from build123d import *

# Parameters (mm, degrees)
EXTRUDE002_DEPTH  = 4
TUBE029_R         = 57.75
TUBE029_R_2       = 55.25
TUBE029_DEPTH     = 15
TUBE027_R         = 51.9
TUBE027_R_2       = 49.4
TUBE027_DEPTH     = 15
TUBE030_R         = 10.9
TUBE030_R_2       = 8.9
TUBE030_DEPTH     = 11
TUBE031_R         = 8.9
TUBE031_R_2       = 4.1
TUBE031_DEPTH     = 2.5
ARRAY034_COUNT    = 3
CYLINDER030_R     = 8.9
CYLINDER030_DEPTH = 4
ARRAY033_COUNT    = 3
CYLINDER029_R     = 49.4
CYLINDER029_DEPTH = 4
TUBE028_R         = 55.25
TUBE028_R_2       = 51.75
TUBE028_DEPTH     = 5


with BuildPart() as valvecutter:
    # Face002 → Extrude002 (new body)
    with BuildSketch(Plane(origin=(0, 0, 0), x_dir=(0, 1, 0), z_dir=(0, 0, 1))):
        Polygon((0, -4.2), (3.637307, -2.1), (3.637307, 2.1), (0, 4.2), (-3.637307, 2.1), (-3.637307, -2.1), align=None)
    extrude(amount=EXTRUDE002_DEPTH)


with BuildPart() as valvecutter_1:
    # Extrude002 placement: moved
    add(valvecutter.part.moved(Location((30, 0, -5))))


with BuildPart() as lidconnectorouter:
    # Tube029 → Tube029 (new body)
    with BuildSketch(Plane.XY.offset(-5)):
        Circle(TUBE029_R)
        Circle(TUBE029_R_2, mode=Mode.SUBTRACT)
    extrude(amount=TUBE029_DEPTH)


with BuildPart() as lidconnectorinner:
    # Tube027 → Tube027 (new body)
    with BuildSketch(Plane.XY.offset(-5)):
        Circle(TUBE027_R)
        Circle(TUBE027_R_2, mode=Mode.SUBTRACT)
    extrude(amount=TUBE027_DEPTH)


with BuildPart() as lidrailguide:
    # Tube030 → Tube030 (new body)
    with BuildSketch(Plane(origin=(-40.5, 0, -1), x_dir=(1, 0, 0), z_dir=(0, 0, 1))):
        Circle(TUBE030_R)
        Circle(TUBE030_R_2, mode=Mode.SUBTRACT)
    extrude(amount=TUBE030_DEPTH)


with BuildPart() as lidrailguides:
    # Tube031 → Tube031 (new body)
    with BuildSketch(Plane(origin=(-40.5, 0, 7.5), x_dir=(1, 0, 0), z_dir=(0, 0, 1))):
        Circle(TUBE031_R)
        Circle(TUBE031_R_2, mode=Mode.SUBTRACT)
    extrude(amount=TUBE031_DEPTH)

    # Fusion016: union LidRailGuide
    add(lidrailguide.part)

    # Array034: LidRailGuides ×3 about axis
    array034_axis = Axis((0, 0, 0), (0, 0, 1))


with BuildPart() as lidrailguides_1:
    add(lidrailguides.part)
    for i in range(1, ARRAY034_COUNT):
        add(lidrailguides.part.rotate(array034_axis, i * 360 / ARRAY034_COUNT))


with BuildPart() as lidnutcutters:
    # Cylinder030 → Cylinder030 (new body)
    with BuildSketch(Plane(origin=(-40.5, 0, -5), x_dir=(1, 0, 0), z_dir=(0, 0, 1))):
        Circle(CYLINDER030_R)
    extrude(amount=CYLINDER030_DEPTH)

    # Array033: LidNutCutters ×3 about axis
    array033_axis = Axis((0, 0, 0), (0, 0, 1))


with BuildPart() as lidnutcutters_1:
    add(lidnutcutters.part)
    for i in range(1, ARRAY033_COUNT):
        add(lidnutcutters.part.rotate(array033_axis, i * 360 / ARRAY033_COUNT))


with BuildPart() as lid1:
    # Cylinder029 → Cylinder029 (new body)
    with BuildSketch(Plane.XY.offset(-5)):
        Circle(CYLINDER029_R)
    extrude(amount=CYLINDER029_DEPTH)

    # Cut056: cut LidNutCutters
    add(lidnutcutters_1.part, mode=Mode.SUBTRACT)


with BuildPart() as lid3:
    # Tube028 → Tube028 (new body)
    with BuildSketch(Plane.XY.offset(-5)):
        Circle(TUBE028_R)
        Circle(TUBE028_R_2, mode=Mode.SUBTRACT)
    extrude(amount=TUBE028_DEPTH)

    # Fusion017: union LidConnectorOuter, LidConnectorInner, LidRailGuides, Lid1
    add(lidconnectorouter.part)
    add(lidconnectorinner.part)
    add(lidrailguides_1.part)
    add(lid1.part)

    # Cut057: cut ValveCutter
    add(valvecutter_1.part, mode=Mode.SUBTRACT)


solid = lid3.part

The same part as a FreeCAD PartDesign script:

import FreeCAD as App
import Part
import Sketcher
Q = App.Units.Quantity


def add_polygon(sketch, points):
    """Adds a closed chain of lines whose ends are joined by coincident constraints."""
    first, n = sketch.GeometryCount, len(points)
    for a, b in zip(points, points[1:] + points[:1]):
        sketch.addGeometry(Part.LineSegment(App.Vector(*a, 0), App.Vector(*b, 0)), False)
    for i in range(n):
        sketch.addConstraint(Sketcher.Constraint("Coincident", first + i, 2, first + (i + 1) % n, 1))

doc = App.newDocument("Part")
body = doc.addObject("PartDesign::Body", "Body")

sketch1 = body.newObject("Sketcher::SketchObject", "Sketch")
sketch1.AttachmentSupport = (doc.getObject("XY_Plane"), [""])
sketch1.MapMode = "FlatFace"
add_polygon(sketch1, [(4.2, 0), (2.1, 3.6), (-2.1, 3.6), (-4.2, 0), (-2.1, -3.6), (2.1, -3.6)])
sketch1.addConstraint([
    Sketcher.Constraint("Horizontal", 1),
    Sketcher.Constraint("Horizontal", 4),
    Sketcher.Constraint("Symmetric", 0, 2, 3, 2, -1, 1),
    Sketcher.Constraint("Symmetric", 2, 2, 5, 2, -1, 1),
    Sketcher.Constraint("PointOnObject", 2, 2, -1),
    Sketcher.Constraint("Parallel", 2, 5),
    Sketcher.Constraint("Vertical", 1, 2, 3, 2),
    Sketcher.Constraint("Angle", 0, Q("119.999998 deg")),
    Sketcher.Constraint("DistanceX", 1, 2, 1, 1, Q("4.2 mm")),
    Sketcher.Constraint("Distance", 0, Q("4.2 mm")),
])
pad1 = body.newObject("PartDesign::Pad", "Pad")
pad1.Profile = sketch1
pad1.Length = 4
body2 = doc.addObject("PartDesign::Body", "Body001")
doc.recompute()

body.Placement = App.Placement(App.Vector(30, 0, -5), App.Rotation(App.Vector(0, 0, 1), 0))
boolean = body2.newObject("PartDesign::Boolean", "Boolean")
boolean.Type = "Fuse"
boolean.addObjects([body])
body3 = doc.addObject("PartDesign::Body", "Body002")

sketch2 = body3.newObject("Sketcher::SketchObject", "Sketch001")
sketch2.AttachmentSupport = (doc.getObject("XY_Plane002"), [""])
sketch2.MapMode = "FlatFace"
sketch2.AttachmentOffset = App.Placement(App.Vector(0, 0, -5), App.Rotation())
sketch2.addGeometry([
    Part.Circle(App.Vector(0, 0, 0), App.Vector(0, 0, 1), 58),
    Part.Circle(App.Vector(0, 0, 0), App.Vector(0, 0, 1), 55),
], False)
sketch2.addConstraint([
    Sketcher.Constraint("Coincident", 0, 3, -1, 1),
    Sketcher.Constraint("Coincident", 1, 3, -1, 1),
    Sketcher.Constraint("Diameter", 0, Q("115.5 mm")),
    Sketcher.Constraint("Diameter", 1, Q("110.5 mm")),
])
pad2 = body3.newObject("PartDesign::Pad", "Pad001")
pad2.Profile = sketch2
pad2.Length = 15
body4 = doc.addObject("PartDesign::Body", "Body003")

sketch3 = body4.newObject("Sketcher::SketchObject", "Sketch002")
sketch3.AttachmentSupport = (doc.getObject("XY_Plane003"), [""])
sketch3.MapMode = "FlatFace"
sketch3.AttachmentOffset = App.Placement(App.Vector(0, 0, -5), App.Rotation())
sketch3.addGeometry([
    Part.Circle(App.Vector(0, 0, 0), App.Vector(0, 0, 1), 52),
    Part.Circle(App.Vector(0, 0, 0), App.Vector(0, 0, 1), 49),
], False)
sketch3.addConstraint([
    Sketcher.Constraint("Coincident", 0, 3, -1, 1),
    Sketcher.Constraint("Coincident", 1, 3, -1, 1),
    Sketcher.Constraint("Diameter", 0, Q("103.8 mm")),
    Sketcher.Constraint("Diameter", 1, Q("98.8 mm")),
])
pad3 = body4.newObject("PartDesign::Pad", "Pad002")
pad3.Profile = sketch3
pad3.Length = 15
body5 = doc.addObject("PartDesign::Body", "Body004")

sketch4 = body5.newObject("Sketcher::SketchObject", "Sketch003")
sketch4.AttachmentSupport = (doc.getObject("XY_Plane004"), [""])
sketch4.MapMode = "FlatFace"
sketch4.AttachmentOffset = App.Placement(App.Vector(0, 0, -1), App.Rotation())
sketch4.addGeometry([
    Part.Circle(App.Vector(-40, 0, 0), App.Vector(0, 0, 1), 11),
    Part.Circle(App.Vector(-40, 0, 0), App.Vector(0, 0, 1), 9),
], False)
sketch4.addConstraint([
    Sketcher.Constraint("Coincident", 1, 3, 0, 3),
    Sketcher.Constraint("PointOnObject", 0, 3, -1),
    Sketcher.Constraint("Diameter", 0, Q("21.8 mm")),
    Sketcher.Constraint("Diameter", 1, Q("17.8 mm")),
    Sketcher.Constraint("DistanceX", 0, 3, -1, 1, Q("40.5 mm")),
])
pad4 = body5.newObject("PartDesign::Pad", "Pad003")
pad4.Profile = sketch4
pad4.Length = 11
body6 = doc.addObject("PartDesign::Body", "Body005")

sketch5 = body6.newObject("Sketcher::SketchObject", "Sketch004")
sketch5.AttachmentSupport = (doc.getObject("XY_Plane005"), [""])
sketch5.MapMode = "FlatFace"
sketch5.AttachmentOffset = App.Placement(App.Vector(0, 0, 7.5), App.Rotation())
sketch5.addGeometry([
    Part.Circle(App.Vector(-40.5, 0, 0), App.Vector(0, 0, 1), 8.9),
    Part.Circle(App.Vector(-40.5, 0, 0), App.Vector(0, 0, 1), 4.1),
], False)
sketch5.addConstraint([
    Sketcher.Constraint("Coincident", 1, 3, 0, 3),
    Sketcher.Constraint("PointOnObject", 0, 3, -1),
    Sketcher.Constraint("Diameter", 0, Q("17.8 mm")),
    Sketcher.Constraint("Diameter", 1, Q("8.2 mm")),
    Sketcher.Constraint("DistanceX", 0, 3, -1, 1, Q("40.5 mm")),
])
pad5 = body6.newObject("PartDesign::Pad", "Pad004")
pad5.Profile = sketch5
pad5.Length = 2.5
doc.recompute()

boolean2 = body6.newObject("PartDesign::Boolean", "Boolean001")
boolean2.Type = "Fuse"
boolean2.addObjects([body5])
body7 = doc.addObject("PartDesign::Body", "Body006")
body7.AllowCompound = True
doc.recompute()

body7.BaseFeature = body6
doc.recompute()

body8 = doc.addObject("PartDesign::Body", "Body007")
body8.BaseFeature = body6
body8.Placement = App.Placement(App.Vector(0, 0, 0), App.Rotation(App.Vector(0, 0, 1), 120))
boolean3 = body7.newObject("PartDesign::Boolean", "Boolean002")
boolean3.Type = "Fuse"
boolean3.addObjects([body8])
doc.recompute()

body6.Placement = App.Placement(App.Vector(0, 0, 0), App.Rotation(App.Vector(0, 0, 1), 240))
boolean4 = body7.newObject("PartDesign::Boolean", "Boolean003")
boolean4.Type = "Fuse"
boolean4.addObjects([body6])
body9 = doc.addObject("PartDesign::Body", "Body008")

sketch6 = body9.newObject("Sketcher::SketchObject", "Sketch005")
sketch6.AttachmentSupport = (doc.getObject("XY_Plane008"), [""])
sketch6.MapMode = "FlatFace"
sketch6.AttachmentOffset = App.Placement(App.Vector(0, 0, -5), App.Rotation())
sketch6.addGeometry(Part.Circle(App.Vector(-40, 0, 0), App.Vector(0, 0, 1), 9), False)
sketch6.addConstraint([
    Sketcher.Constraint("PointOnObject", 0, 3, -1),
    Sketcher.Constraint("Diameter", 0, Q("17.8 mm")),
    Sketcher.Constraint("DistanceX", 0, 3, -1, 1, Q("40.5 mm")),
])
pad6 = body9.newObject("PartDesign::Pad", "Pad005")
pad6.Profile = sketch6
pad6.Length = 4
body10 = doc.addObject("PartDesign::Body", "Body009")
body10.AllowCompound = True
doc.recompute()

body10.BaseFeature = body9
doc.recompute()

body11 = doc.addObject("PartDesign::Body", "Body010")
body11.BaseFeature = body9
body11.Placement = App.Placement(App.Vector(0, 0, 0), App.Rotation(App.Vector(0, 0, 1), 120))
boolean5 = body10.newObject("PartDesign::Boolean", "Boolean004")
boolean5.Type = "Fuse"
boolean5.addObjects([body11])
doc.recompute()

body9.Placement = App.Placement(App.Vector(0, 0, 0), App.Rotation(App.Vector(0, 0, 1), 240))
boolean6 = body10.newObject("PartDesign::Boolean", "Boolean005")
boolean6.Type = "Fuse"
boolean6.addObjects([body9])
body12 = doc.addObject("PartDesign::Body", "Body011")

sketch7 = body12.newObject("Sketcher::SketchObject", "Sketch006")
sketch7.AttachmentSupport = (doc.getObject("XY_Plane011"), [""])
sketch7.MapMode = "FlatFace"
sketch7.AttachmentOffset = App.Placement(App.Vector(0, 0, -5), App.Rotation())
sketch7.addGeometry(Part.Circle(App.Vector(0, 0, 0), App.Vector(0, 0, 1), 49), False)
sketch7.addConstraint([
    Sketcher.Constraint("Coincident", 0, 3, -1, 1),
    Sketcher.Constraint("Diameter", 0, Q("98.8 mm")),
])
pad7 = body12.newObject("PartDesign::Pad", "Pad006")
pad7.Profile = sketch7
pad7.Length = 4
doc.recompute()

boolean7 = body12.newObject("PartDesign::Boolean", "Boolean006")
boolean7.Type = "Cut"
boolean7.addObjects([body10])
body13 = doc.addObject("PartDesign::Body", "Body012")

sketch8 = body13.newObject("Sketcher::SketchObject", "Sketch007")
sketch8.AttachmentSupport = (doc.getObject("XY_Plane012"), [""])
sketch8.MapMode = "FlatFace"
sketch8.AttachmentOffset = App.Placement(App.Vector(0, 0, -5), App.Rotation())
sketch8.addGeometry([
    Part.Circle(App.Vector(0, 0, 0), App.Vector(0, 0, 1), 55),
    Part.Circle(App.Vector(0, 0, 0), App.Vector(0, 0, 1), 52),
], False)
sketch8.addConstraint([
    Sketcher.Constraint("Coincident", 0, 3, -1, 1),
    Sketcher.Constraint("Coincident", 1, 3, -1, 1),
    Sketcher.Constraint("Diameter", 0, Q("110.5 mm")),
    Sketcher.Constraint("Diameter", 1, Q("103.5 mm")),
])
pad8 = body13.newObject("PartDesign::Pad", "Pad007")
pad8.Profile = sketch8
pad8.Length = 5
doc.recompute()

boolean8 = body13.newObject("PartDesign::Boolean", "Boolean007")
boolean8.Type = "Fuse"
boolean8.addObjects([body3])
doc.recompute()

boolean9 = body13.newObject("PartDesign::Boolean", "Boolean008")
boolean9.Type = "Fuse"
boolean9.addObjects([body4])
doc.recompute()

boolean10 = body13.newObject("PartDesign::Boolean", "Boolean009")
boolean10.Type = "Fuse"
boolean10.addObjects([body7])
doc.recompute()

boolean11 = body13.newObject("PartDesign::Boolean", "Boolean010")
boolean11.Type = "Fuse"
boolean11.addObjects([body12])
doc.recompute()

boolean12 = body13.newObject("PartDesign::Boolean", "Boolean011")
boolean12.Type = "Cut"
boolean12.addObjects([body2])

doc.recompute()
